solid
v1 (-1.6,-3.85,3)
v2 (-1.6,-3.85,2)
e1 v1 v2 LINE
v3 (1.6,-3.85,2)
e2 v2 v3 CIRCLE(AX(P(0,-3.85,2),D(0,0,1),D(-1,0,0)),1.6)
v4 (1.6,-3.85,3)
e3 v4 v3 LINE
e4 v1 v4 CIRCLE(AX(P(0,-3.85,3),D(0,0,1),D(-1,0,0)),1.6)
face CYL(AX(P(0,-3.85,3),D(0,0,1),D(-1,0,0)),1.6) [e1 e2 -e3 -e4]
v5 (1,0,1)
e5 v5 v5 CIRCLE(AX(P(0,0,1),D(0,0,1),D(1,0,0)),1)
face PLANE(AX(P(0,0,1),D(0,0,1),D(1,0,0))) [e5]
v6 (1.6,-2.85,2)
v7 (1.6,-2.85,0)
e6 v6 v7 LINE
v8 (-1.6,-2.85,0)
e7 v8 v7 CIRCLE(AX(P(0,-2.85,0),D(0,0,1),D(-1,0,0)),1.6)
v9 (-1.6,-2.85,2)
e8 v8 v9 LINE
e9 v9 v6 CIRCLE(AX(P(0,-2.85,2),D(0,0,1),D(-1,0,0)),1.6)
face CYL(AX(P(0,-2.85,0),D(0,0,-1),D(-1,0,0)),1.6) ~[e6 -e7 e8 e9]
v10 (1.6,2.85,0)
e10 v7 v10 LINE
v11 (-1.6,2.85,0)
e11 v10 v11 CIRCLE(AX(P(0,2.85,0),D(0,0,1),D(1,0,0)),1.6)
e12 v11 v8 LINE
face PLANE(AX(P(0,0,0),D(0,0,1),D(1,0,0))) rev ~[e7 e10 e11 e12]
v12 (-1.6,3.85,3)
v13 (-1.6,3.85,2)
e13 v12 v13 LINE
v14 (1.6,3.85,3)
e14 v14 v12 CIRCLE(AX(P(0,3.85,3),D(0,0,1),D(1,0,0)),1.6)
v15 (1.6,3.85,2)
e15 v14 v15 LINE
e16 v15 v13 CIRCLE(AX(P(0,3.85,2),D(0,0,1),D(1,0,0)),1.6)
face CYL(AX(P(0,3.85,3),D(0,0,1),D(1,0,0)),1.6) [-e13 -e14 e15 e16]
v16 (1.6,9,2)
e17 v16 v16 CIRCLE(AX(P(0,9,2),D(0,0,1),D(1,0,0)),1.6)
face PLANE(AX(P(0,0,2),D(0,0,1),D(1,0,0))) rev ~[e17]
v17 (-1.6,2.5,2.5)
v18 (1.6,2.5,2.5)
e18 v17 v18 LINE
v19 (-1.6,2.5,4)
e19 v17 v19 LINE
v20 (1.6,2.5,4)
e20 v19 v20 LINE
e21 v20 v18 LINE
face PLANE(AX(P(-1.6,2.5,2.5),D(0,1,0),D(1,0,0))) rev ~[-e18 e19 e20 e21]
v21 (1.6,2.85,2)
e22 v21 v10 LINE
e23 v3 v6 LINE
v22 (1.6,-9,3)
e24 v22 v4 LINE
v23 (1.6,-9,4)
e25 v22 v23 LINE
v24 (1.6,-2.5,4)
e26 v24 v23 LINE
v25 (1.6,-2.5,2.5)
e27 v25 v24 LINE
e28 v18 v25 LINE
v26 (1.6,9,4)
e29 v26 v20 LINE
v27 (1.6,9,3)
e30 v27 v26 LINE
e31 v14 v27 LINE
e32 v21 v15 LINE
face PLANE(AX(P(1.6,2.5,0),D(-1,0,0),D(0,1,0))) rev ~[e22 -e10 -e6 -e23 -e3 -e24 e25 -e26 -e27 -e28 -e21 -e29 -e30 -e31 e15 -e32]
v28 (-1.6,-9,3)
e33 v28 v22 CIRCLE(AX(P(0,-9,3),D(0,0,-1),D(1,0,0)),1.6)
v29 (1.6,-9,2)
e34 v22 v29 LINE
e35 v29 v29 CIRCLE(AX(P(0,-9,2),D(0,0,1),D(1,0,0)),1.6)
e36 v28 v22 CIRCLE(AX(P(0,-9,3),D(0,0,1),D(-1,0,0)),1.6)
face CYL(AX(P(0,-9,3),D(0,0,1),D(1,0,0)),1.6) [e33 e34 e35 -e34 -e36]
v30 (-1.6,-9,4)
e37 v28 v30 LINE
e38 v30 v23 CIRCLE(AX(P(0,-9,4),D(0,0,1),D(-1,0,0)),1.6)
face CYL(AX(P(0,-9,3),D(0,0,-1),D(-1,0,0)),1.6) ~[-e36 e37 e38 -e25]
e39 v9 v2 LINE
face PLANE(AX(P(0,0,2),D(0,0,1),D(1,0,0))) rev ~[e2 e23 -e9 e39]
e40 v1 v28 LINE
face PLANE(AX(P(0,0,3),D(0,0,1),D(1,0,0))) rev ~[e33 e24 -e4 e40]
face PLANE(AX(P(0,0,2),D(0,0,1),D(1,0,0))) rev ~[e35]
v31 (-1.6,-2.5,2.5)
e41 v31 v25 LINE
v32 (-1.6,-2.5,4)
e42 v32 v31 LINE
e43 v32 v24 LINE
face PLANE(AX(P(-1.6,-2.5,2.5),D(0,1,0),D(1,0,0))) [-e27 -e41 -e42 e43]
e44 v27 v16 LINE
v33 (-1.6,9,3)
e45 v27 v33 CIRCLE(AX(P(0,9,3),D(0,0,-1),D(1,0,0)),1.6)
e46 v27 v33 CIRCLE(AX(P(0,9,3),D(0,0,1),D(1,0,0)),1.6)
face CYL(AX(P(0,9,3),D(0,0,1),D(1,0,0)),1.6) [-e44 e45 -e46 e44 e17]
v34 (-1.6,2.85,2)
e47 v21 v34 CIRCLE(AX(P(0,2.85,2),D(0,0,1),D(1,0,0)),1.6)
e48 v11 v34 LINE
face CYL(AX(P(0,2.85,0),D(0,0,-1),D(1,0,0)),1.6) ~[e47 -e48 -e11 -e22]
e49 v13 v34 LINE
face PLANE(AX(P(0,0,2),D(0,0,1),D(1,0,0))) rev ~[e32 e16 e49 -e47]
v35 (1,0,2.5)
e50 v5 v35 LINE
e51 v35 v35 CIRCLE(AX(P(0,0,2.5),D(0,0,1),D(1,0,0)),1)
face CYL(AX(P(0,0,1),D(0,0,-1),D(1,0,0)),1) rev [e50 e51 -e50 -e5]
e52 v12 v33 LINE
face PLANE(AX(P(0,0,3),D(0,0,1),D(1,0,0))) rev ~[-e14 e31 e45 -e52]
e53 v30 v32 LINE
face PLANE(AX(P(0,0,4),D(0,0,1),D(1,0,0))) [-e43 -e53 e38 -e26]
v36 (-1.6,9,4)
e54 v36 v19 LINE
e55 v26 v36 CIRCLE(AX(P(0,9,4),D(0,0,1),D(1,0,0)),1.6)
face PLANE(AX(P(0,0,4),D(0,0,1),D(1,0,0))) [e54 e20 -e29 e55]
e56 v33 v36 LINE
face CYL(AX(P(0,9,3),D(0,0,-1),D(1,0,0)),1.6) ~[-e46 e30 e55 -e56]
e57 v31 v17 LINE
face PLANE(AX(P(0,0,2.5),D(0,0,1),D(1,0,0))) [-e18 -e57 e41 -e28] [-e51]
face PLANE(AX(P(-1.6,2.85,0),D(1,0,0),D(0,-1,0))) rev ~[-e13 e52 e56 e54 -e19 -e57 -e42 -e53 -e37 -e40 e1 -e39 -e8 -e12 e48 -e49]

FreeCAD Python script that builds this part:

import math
import FreeCAD as App
import Part
import Sketcher
from FreeCAD import Vector
Q = App.Units.Quantity

doc = App.newDocument("Part")
body = doc.addObject("PartDesign::Body", "Body")

# Sketch on XY plane
sketch1 = doc.addObject("Sketcher::SketchObject", "Sketch")
body.addObject(sketch1)
sketch1.AttachmentSupport = (doc.XY_Plane, [""])
sketch1.MapMode = "FlatFace"
sketch1.addGeometry(Part.ArcOfCircle(Part.Circle(Vector(0, 2.9, 0), Vector(0, 0, 1), 1.6), math.radians(0), math.radians(180)), False)
sketch1.addGeometry(Part.LineSegment(Vector(-1.6, 2.9, 0), Vector(-1.6, -2.9, 0)), False)
sketch1.addGeometry(Part.ArcOfCircle(Part.Circle(Vector(0, -2.9, 0), Vector(0, 0, 1), 1.6), math.radians(180), math.radians(360)), False)
sketch1.addGeometry(Part.LineSegment(Vector(1.6, -2.9, 0), Vector(1.6, 2.9, 0)), False)
sketch1.addConstraint(Sketcher.Constraint("Tangent", 0, 2, 1, 1))
sketch1.addConstraint(Sketcher.Constraint("Tangent", 1, 2, 2, 1))
sketch1.addConstraint(Sketcher.Constraint("Tangent", 2, 2, 3, 1))
sketch1.addConstraint(Sketcher.Constraint("Tangent", 3, 2, 0, 1))
sketch1.addConstraint(Sketcher.Constraint("Vertical", 1))
sketch1.addConstraint(Sketcher.Constraint("Vertical", 3))
sketch1.addConstraint(Sketcher.Constraint("Symmetric", 0, 3, 2, 3, -1, 1))
sketch1.addConstraint(Sketcher.Constraint("Radius", 0, Q("1.6 mm")))
sketch1.addConstraint(Sketcher.Constraint("DistanceY", 1, 2, 1, 1, Q("5.7 mm")))
pad1 = doc.addObject("PartDesign::Pad", "Pad")
body.addObject(pad1)
pad1.Profile = sketch1
pad1.Length = 1

# Sketch on XY plane
sketch2 = doc.addObject("Sketcher::SketchObject", "Sketch001")
body.addObject(sketch2)
sketch2.AttachmentSupport = (doc.XY_Plane, [""])
sketch2.MapMode = "FlatFace"
sketch2.AttachmentOffset = App.Placement(Vector(0, 0, 1), App.Rotation())
sketch2.addGeometry(Part.ArcOfCircle(Part.Circle(Vector(0, 2.9, 0), Vector(0, 0, 1), 1.6), math.radians(0), math.radians(180)), False)
sketch2.addGeometry(Part.LineSegment(Vector(-1.6, 2.9, 0), Vector(-1.6, -2.9, 0)), False)
sketch2.addGeometry(Part.ArcOfCircle(Part.Circle(Vector(0, -2.9, 0), Vector(0, 0, 1), 1.6), math.radians(180), math.radians(360)), False)
sketch2.addGeometry(Part.LineSegment(Vector(1.6, -2.9, 0), Vector(1.6, 2.9, 0)), False)
sketch2.addGeometry(Part.Circle(Vector(0, 0, 0), Vector(0, 0, 1), 1), False)
sketch2.addConstraint(Sketcher.Constraint("Tangent", 0, 2, 1, 1))
sketch2.addConstraint(Sketcher.Constraint("Tangent", 1, 2, 2, 1))
sketch2.addConstraint(Sketcher.Constraint("Tangent", 2, 2, 3, 1))
sketch2.addConstraint(Sketcher.Constraint("Tangent", 3, 2, 0, 1))
sketch2.addConstraint(Sketcher.Constraint("Vertical", 1))
sketch2.addConstraint(Sketcher.Constraint("Vertical", 3))
sketch2.addConstraint(Sketcher.Constraint("Coincident", 4, 3, -1, 1))
sketch2.addConstraint(Sketcher.Constraint("Symmetric", 0, 3, 2, 3, -1, 1))
sketch2.addConstraint(Sketcher.Constraint("Diameter", 4, Q("2 mm")))
sketch2.addConstraint(Sketcher.Constraint("Radius", 0, Q("1.6 mm")))
sketch2.addConstraint(Sketcher.Constraint("DistanceY", 1, 2, 1, 1, Q("5.7 mm")))
pad2 = doc.addObject("PartDesign::Pad", "Pad001")
body.addObject(pad2)
pad2.Profile = sketch2
pad2.Length = 1.5

# Sketch on XY plane
sketch3 = doc.addObject("Sketcher::SketchObject", "Sketch002")
body.addObject(sketch3)
sketch3.AttachmentSupport = (doc.XY_Plane, [""])
sketch3.MapMode = "FlatFace"
sketch3.AttachmentOffset = App.Placement(Vector(0, 0, 2.5), App.Rotation())
sketch3.addGeometry(Part.ArcOfCircle(Part.Circle(Vector(0, 2.85, 0), Vector(0, 0, 1), 1.6), math.radians(0), math.radians(180)), False)
sketch3.addGeometry(Part.LineSegment(Vector(-1.6, 2.85, 0), Vector(-1.6, 2.5, 0)), False)
sketch3.addGeometry(Part.LineSegment(Vector(-1.6, 2.5, 0), Vector(1.6, 2.5, 0)), False)
sketch3.addGeometry(Part.LineSegment(Vector(1.6, 2.5, 0), Vector(1.6, 2.85, 0)), False)
sketch3.addGeometry(Part.LineSegment(Vector(1.6, -2.5, 0), Vector(-1.6, -2.5, 0)), False)
sketch3.addGeometry(Part.LineSegment(Vector(-1.6, -2.5, 0), Vector(-1.6, -2.85, 0)), False)
sketch3.addGeometry(Part.ArcOfCircle(Part.Circle(Vector(0, -2.85, 0), Vector(0, 0, 1), 1.6), math.radians(180), math.radians(360)), False)
sketch3.addGeometry(Part.LineSegment(Vector(1.6, -2.85, 0), Vector(1.6, -2.5, 0)), False)
sketch3.addConstraint(Sketcher.Constraint("Tangent", 0, 2, 1, 1))
sketch3.addConstraint(Sketcher.Constraint("Coincident", 1, 2, 2, 1))
sketch3.addConstraint(Sketcher.Constraint("Coincident", 2, 2, 3, 1))
sketch3.addConstraint(Sketcher.Constraint("Tangent", 3, 2, 0, 1))
sketch3.addConstraint(Sketcher.Constraint("Coincident", 4, 2, 5, 1))
sketch3.addConstraint(Sketcher.Constraint("Tangent", 5, 2, 6, 1))
sketch3.addConstraint(Sketcher.Constraint("Tangent", 6, 2, 7, 1))
sketch3.addConstraint(Sketcher.Constraint("Coincident", 7, 2, 4, 1))
sketch3.addConstraint(Sketcher.Constraint("Vertical", 1))
sketch3.addConstraint(Sketcher.Constraint("Horizontal", 2))
sketch3.addConstraint(Sketcher.Constraint("Vertical", 3))
sketch3.addConstraint(Sketcher.Constraint("Horizontal", 4))
sketch3.addConstraint(Sketcher.Constraint("Vertical", 5))
sketch3.addConstraint(Sketcher.Constraint("Vertical", 7))
sketch3.addConstraint(Sketcher.Constraint("Equal", 0, 6))
sketch3.addConstraint(Sketcher.Constraint("Symmetric", 0, 3, 6, 3, -1, 1))
sketch3.addConstraint(Sketcher.Constraint("Symmetric", 1, 2, 4, 2, -1))
sketch3.addConstraint(Sketcher.Constraint("Radius", 0, Q("1.6 mm")))
sketch3.addConstraint(Sketcher.Constraint("DistanceY", -1, 1, 1, 2, Q("2.5 mm")))
sketch3.addConstraint(Sketcher.Constraint("DistanceY", 1, 2, 1, 1, Q("0.35 mm")))
pad3 = doc.addObject("PartDesign::Pad", "Pad002")
body.addObject(pad3)
pad3.Profile = sketch3
pad3.Length = 0.5

# Sketch on XY plane
sketch4 = doc.addObject("Sketcher::SketchObject", "Sketch003")
body.addObject(sketch4)
sketch4.AttachmentSupport = (doc.XY_Plane, [""])
sketch4.MapMode = "FlatFace"
sketch4.AttachmentOffset = App.Placement(Vector(0, 0, 3), App.Rotation())
sketch4.addGeometry(Part.LineSegment(Vector(1.6, 2.5, 0), Vector(1.6, 9, 0)), False)
sketch4.addGeometry(Part.ArcOfCircle(Part.Circle(Vector(0, 9, 0), Vector(0, 0, 1), 1.6), math.radians(0), math.radians(180)), False)
sketch4.addGeometry(Part.LineSegment(Vector(-1.6, 9, 0), Vector(-1.6, 2.5, 0)), False)
sketch4.addGeometry(Part.LineSegment(Vector(-1.6, 2.5, 0), Vector(1.6, 2.5, 0)), False)
sketch4.addGeometry(Part.LineSegment(Vector(1.6, -2.5, 0), Vector(-1.6, -2.5, 0)), False)
sketch4.addGeometry(Part.LineSegment(Vector(-1.6, -2.5, 0), Vector(-1.6, -9, 0)), False)
sketch4.addGeometry(Part.ArcOfCircle(Part.Circle(Vector(0, -9, 0), Vector(0, 0, 1), 1.6), math.radians(180), math.radians(360)), False)
sketch4.addGeometry(Part.LineSegment(Vector(1.6, -9, 0), Vector(1.6, -2.5, 0)), False)
sketch4.addConstraint(Sketcher.Constraint("Tangent", 0, 2, 1, 1))
sketch4.addConstraint(Sketcher.Constraint("Tangent", 1, 2, 2, 1))
sketch4.addConstraint(Sketcher.Constraint("Coincident", 2, 2, 3, 1))
sketch4.addConstraint(Sketcher.Constraint("Coincident", 3, 2, 0, 1))
sketch4.addConstraint(Sketcher.Constraint("Coincident", 4, 2, 5, 1))
sketch4.addConstraint(Sketcher.Constraint("Tangent", 5, 2, 6, 1))
sketch4.addConstraint(Sketcher.Constraint("Tangent", 6, 2, 7, 1))
sketch4.addConstraint(Sketcher.Constraint("Coincident", 7, 2, 4, 1))
sketch4.addConstraint(Sketcher.Constraint("Vertical", 0))
sketch4.addConstraint(Sketcher.Constraint("Vertical", 2))
sketch4.addConstraint(Sketcher.Constraint("Horizontal", 3))
sketch4.addConstraint(Sketcher.Constraint("Horizontal", 4))
sketch4.addConstraint(Sketcher.Constraint("Vertical", 5))
sketch4.addConstraint(Sketcher.Constraint("Vertical", 7))
sketch4.addConstraint(Sketcher.Constraint("Equal", 1, 6))
sketch4.addConstraint(Sketcher.Constraint("Symmetric", 1, 3, 6, 3, -1, 1))
sketch4.addConstraint(Sketcher.Constraint("Symmetric", 2, 2, 4, 2, -1))
sketch4.addConstraint(Sketcher.Constraint("Radius", 1, Q("1.6 mm")))
sketch4.addConstraint(Sketcher.Constraint("DistanceY", -1, 1, 2, 2, Q("2.5 mm")))
sketch4.addConstraint(Sketcher.Constraint("DistanceY", 0, 1, 0, 2, Q("6.5 mm")))
pad4 = doc.addObject("PartDesign::Pad", "Pad003")
body.addObject(pad4)
pad4.Profile = sketch4
pad4.Length = 1

# Sketch on XY plane
sketch5 = doc.addObject("Sketcher::SketchObject", "Sketch004")
body.addObject(sketch5)
sketch5.AttachmentSupport = (doc.XY_Plane, [""])
sketch5.MapMode = "FlatFace"
sketch5.AttachmentOffset = App.Placement(Vector(0, 0, 3), App.Rotation())
sketch5.addGeometry(Part.Circle(Vector(0, 9, 0), Vector(0, 0, 1), 1.6), False)
sketch5.addGeometry(Part.Circle(Vector(0, -9, 0), Vector(0, 0, 1), 1.6), False)
sketch5.addConstraint(Sketcher.Constraint("Equal", 0, 1))
sketch5.addConstraint(Sketcher.Constraint("Symmetric", 0, 3, 1, 3, -1, 1))
sketch5.addConstraint(Sketcher.Constraint("PointOnObject", 0, 3, -2))
sketch5.addConstraint(Sketcher.Constraint("Diameter", 0, Q("3.2 mm")))
sketch5.addConstraint(Sketcher.Constraint("DistanceY", -1, 1, 0, 3, Q("9 mm")))
pad5 = doc.addObject("PartDesign::Pad", "Pad004")
body.addObject(pad5)
pad5.Profile = sketch5
pad5.Length = 1
pad5.Reversed = True

# Sketch on XY plane
sketch6 = doc.addObject("Sketcher::SketchObject", "Sketch005")
body.addObject(sketch6)
sketch6.AttachmentSupport = (doc.XY_Plane, [""])
sketch6.MapMode = "FlatFace"
sketch6.AttachmentOffset = App.Placement(Vector(0, 0, 3), App.Rotation())
sketch6.addGeometry(Part.LineSegment(Vector(-1.6, 3.9, 0), Vector(-1.6, 2.9, 0)), False)
sketch6.addGeometry(Part.ArcOfCircle(Part.Circle(Vector(0, 2.9, 0), Vector(0, 0, 1), 1.6), math.radians(0), math.radians(180)), False)
sketch6.addGeometry(Part.LineSegment(Vector(1.6, 2.9, 0), Vector(1.6, 3.9, 0)), False)
sketch6.addGeometry(Part.ArcOfCircle(Part.Circle(Vector(0, 3.9, 0), Vector(0, 0, 1), 1.6), math.radians(0), math.radians(180)), False)
sketch6.addGeometry(Part.ArcOfCircle(Part.Circle(Vector(0, -2.9, 0), Vector(0, 0, 1), 1.6), math.radians(180), math.radians(360)), False)
sketch6.addGeometry(Part.LineSegment(Vector(-1.6, -2.9, 0), Vector(-1.6, -3.9, 0)), False)
sketch6.addGeometry(Part.ArcOfCircle(Part.Circle(Vector(0, -3.9, 0), Vector(0, 0, 1), 1.6), math.radians(180), math.radians(360)), False)
sketch6.addGeometry(Part.LineSegment(Vector(1.6, -3.9, 0), Vector(1.6, -2.9, 0)), False)
sketch6.addConstraint(Sketcher.Constraint("Tangent", 0, 2, 1, 2))
sketch6.addConstraint(Sketcher.Constraint("Tangent", 1, 1, 2, 1))
sketch6.addConstraint(Sketcher.Constraint("Tangent", 2, 2, 3, 1))
sketch6.addConstraint(Sketcher.Constraint("Tangent", 3, 2, 0, 1))
sketch6.addConstraint(Sketcher.Constraint("Tangent", 4, 1, 5, 1))
sketch6.addConstraint(Sketcher.Constraint("Tangent", 5, 2, 6, 1))
sketch6.addConstraint(Sketcher.Constraint("Tangent", 6, 2, 7, 1))
sketch6.addConstraint(Sketcher.Constraint("Tangent", 7, 2, 4, 2))
sketch6.addConstraint(Sketcher.Constraint("Vertical", 0))
sketch6.addConstraint(Sketcher.Constraint("Vertical", 2))
sketch6.addConstraint(Sketcher.Constraint("Vertical", 5))
sketch6.addConstraint(Sketcher.Constraint("Vertical", 7))
sketch6.addConstraint(Sketcher.Constraint("Equal", 3, 4))
sketch6.addConstraint(Sketcher.Constraint("Symmetric", 1, 3, 4, 3, -1, 1))
sketch6.addConstraint(Sketcher.Constraint("Symmetric", 3, 3, 6, 3, -1))
sketch6.addConstraint(Sketcher.Constraint("Radius", 1, Q("1.6 mm")))
sketch6.addConstraint(Sketcher.Constraint("DistanceY", 0, 2, 0, 1, Q("1 mm")))
sketch6.addConstraint(Sketcher.Constraint("DistanceY", 4, 3, 1, 3, Q("5.7 mm")))
pad6 = doc.addObject("PartDesign::Pad", "Pad005")
body.addObject(pad6)
pad6.Profile = sketch6
pad6.Length = 1
pad6.Reversed = True

doc.recompute()
